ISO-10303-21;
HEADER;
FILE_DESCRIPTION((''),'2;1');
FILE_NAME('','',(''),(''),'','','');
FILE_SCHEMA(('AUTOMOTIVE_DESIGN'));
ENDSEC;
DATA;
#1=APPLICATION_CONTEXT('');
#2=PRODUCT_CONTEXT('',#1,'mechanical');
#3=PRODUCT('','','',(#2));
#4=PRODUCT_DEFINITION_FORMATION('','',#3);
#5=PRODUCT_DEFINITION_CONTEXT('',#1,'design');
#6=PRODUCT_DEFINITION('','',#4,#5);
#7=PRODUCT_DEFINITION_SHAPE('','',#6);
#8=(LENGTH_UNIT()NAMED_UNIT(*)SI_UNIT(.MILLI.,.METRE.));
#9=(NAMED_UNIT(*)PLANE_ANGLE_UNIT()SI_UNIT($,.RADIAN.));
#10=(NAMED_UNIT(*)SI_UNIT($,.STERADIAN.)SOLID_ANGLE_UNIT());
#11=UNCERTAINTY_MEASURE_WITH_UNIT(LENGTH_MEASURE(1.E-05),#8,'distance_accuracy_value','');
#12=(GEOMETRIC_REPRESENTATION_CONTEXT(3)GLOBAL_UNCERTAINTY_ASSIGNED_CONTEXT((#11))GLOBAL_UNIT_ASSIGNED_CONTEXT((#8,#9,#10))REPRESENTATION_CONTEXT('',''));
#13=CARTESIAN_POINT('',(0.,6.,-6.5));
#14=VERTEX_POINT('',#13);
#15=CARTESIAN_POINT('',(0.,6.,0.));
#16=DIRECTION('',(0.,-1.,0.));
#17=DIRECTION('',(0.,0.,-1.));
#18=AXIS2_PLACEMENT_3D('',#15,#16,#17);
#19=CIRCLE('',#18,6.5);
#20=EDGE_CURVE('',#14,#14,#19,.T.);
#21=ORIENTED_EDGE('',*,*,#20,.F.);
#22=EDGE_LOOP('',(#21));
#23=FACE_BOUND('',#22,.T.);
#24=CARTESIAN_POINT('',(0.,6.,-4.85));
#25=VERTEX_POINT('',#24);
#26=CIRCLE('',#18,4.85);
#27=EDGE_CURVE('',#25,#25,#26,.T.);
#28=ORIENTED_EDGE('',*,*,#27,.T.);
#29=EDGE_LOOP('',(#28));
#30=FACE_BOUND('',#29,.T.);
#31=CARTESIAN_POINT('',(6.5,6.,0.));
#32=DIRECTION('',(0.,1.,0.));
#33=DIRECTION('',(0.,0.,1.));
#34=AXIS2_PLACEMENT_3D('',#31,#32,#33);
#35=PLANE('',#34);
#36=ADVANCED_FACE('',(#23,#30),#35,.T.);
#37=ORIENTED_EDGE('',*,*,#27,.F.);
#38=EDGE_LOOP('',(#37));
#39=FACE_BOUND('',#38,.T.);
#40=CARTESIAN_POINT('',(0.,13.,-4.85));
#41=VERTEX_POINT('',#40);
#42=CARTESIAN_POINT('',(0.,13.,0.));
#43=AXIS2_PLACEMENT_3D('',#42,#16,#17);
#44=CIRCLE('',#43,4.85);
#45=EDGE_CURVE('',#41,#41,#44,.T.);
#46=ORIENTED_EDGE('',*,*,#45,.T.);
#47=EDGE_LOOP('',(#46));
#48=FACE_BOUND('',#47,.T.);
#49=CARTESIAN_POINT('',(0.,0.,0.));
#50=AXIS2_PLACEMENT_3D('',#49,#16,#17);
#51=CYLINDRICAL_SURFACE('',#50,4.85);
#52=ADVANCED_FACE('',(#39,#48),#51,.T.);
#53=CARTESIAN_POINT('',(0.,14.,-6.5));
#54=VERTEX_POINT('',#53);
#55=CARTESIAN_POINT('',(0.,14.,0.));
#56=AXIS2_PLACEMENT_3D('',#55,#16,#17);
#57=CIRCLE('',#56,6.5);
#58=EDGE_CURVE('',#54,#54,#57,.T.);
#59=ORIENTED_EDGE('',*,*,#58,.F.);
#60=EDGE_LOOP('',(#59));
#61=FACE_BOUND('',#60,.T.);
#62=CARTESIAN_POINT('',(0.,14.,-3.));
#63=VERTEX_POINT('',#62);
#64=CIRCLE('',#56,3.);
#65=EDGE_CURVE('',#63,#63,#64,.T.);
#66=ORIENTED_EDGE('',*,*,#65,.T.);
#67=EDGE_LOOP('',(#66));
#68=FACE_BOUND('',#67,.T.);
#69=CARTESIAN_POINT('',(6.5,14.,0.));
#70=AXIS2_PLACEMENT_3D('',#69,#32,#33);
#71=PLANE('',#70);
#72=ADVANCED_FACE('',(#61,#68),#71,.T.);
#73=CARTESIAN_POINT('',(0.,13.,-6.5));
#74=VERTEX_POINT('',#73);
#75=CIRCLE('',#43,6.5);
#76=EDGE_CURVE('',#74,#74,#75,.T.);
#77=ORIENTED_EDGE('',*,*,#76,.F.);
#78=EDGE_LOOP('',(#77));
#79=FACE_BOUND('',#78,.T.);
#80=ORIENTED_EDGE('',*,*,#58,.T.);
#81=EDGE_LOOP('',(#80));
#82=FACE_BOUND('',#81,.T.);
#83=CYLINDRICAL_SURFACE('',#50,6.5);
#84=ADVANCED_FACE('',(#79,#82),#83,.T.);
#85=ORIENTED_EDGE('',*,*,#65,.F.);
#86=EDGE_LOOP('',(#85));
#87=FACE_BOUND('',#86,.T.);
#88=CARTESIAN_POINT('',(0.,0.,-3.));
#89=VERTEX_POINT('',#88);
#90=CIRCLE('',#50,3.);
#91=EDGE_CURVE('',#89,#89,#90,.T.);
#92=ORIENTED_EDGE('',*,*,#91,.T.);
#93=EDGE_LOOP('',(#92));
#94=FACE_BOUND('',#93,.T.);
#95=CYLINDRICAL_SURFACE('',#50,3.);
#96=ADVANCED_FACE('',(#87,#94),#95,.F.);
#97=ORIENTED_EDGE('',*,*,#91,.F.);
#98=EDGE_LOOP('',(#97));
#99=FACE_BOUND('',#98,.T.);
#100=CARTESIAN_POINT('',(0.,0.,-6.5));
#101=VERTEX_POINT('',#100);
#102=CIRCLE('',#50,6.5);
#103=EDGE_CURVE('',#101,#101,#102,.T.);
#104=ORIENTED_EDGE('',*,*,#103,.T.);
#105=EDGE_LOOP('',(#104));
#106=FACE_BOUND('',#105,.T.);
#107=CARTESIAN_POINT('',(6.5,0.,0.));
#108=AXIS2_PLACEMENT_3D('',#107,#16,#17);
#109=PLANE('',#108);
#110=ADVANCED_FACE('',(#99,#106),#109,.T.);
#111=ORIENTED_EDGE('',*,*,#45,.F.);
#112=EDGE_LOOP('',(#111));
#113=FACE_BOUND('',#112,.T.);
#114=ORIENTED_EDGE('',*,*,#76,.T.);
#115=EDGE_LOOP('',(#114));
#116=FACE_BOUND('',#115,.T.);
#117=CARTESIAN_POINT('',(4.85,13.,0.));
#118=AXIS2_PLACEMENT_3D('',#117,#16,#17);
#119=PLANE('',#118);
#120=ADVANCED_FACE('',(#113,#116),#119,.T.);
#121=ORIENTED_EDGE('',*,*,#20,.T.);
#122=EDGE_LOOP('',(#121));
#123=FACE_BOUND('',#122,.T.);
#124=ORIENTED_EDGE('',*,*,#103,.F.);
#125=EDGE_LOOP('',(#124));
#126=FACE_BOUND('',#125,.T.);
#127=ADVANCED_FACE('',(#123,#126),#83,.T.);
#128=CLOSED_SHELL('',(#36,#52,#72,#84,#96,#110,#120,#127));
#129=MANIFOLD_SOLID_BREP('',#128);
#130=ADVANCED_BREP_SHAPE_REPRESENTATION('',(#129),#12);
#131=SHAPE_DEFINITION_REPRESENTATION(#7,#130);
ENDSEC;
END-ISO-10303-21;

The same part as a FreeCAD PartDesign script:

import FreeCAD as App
import Part
import Sketcher

V = App.Vector
Q = App.Units.Quantity


def add_polygon(sketch, points):
    """Adds a closed chain of lines whose ends are joined by coincident constraints."""
    first, n = sketch.GeometryCount, len(points)
    for a, b in zip(points, points[1:] + points[:1]):
        sketch.addGeometry(Part.LineSegment(App.Vector(*a, 0), App.Vector(*b, 0)), False)
    for i in range(n):
        sketch.addConstraint(Sketcher.Constraint("Coincident", first + i, 2, first + (i + 1) % n, 1))

doc = App.newDocument("Part")
body = doc.addObject("PartDesign::Body", "Body")

# Sketch on XY plane
sketch1 = body.newObject("Sketcher::SketchObject", "Sketch")
sketch1.AttachmentSupport = (doc.getObject("XY_Plane"), [""])
sketch1.MapMode = "FlatFace"
add_polygon(sketch1, [(6.5, 0), (6.5, 6), (4.8, 6), (4.8, 13), (6.5, 13), (6.5, 14), (3, 14), (3, 0)])  # lines 0-7
sketch1.addConstraint([
    Sketcher.Constraint("Vertical", 0),
    Sketcher.Constraint("Horizontal", 1),
    Sketcher.Constraint("Vertical", 2),
    Sketcher.Constraint("Horizontal", 3),
    Sketcher.Constraint("Vertical", 4),
    Sketcher.Constraint("Horizontal", 5),
    Sketcher.Constraint("Vertical", 6),
    Sketcher.Constraint("Horizontal", 7),
    Sketcher.Constraint("PointOnObject", 6, 2, -1),
    Sketcher.Constraint("Vertical", 0, 2, 3, 2),
    Sketcher.Constraint("DistanceY", 0, 1, 0, 2, Q("6 mm")),
    Sketcher.Constraint("DistanceY", 2, 1, 2, 2, Q("7 mm")),
    Sketcher.Constraint("DistanceY", 4, 1, 4, 2, Q("1 mm")),
    Sketcher.Constraint("DistanceX", 5, 2, 5, 1, Q("3.5 mm")),
    Sketcher.Constraint("DistanceX", -1, 1, 5, 2, Q("3 mm")),
    Sketcher.Constraint("DistanceX", 1, 2, 1, 1, Q("1.65 mm")),
])
revolution = body.newObject("PartDesign::Revolution", "Revolution")
revolution.Profile = sketch1
revolution.ReferenceAxis = (sketch1, ["V_Axis"])
revolution.Angle = 360

doc.recompute()
